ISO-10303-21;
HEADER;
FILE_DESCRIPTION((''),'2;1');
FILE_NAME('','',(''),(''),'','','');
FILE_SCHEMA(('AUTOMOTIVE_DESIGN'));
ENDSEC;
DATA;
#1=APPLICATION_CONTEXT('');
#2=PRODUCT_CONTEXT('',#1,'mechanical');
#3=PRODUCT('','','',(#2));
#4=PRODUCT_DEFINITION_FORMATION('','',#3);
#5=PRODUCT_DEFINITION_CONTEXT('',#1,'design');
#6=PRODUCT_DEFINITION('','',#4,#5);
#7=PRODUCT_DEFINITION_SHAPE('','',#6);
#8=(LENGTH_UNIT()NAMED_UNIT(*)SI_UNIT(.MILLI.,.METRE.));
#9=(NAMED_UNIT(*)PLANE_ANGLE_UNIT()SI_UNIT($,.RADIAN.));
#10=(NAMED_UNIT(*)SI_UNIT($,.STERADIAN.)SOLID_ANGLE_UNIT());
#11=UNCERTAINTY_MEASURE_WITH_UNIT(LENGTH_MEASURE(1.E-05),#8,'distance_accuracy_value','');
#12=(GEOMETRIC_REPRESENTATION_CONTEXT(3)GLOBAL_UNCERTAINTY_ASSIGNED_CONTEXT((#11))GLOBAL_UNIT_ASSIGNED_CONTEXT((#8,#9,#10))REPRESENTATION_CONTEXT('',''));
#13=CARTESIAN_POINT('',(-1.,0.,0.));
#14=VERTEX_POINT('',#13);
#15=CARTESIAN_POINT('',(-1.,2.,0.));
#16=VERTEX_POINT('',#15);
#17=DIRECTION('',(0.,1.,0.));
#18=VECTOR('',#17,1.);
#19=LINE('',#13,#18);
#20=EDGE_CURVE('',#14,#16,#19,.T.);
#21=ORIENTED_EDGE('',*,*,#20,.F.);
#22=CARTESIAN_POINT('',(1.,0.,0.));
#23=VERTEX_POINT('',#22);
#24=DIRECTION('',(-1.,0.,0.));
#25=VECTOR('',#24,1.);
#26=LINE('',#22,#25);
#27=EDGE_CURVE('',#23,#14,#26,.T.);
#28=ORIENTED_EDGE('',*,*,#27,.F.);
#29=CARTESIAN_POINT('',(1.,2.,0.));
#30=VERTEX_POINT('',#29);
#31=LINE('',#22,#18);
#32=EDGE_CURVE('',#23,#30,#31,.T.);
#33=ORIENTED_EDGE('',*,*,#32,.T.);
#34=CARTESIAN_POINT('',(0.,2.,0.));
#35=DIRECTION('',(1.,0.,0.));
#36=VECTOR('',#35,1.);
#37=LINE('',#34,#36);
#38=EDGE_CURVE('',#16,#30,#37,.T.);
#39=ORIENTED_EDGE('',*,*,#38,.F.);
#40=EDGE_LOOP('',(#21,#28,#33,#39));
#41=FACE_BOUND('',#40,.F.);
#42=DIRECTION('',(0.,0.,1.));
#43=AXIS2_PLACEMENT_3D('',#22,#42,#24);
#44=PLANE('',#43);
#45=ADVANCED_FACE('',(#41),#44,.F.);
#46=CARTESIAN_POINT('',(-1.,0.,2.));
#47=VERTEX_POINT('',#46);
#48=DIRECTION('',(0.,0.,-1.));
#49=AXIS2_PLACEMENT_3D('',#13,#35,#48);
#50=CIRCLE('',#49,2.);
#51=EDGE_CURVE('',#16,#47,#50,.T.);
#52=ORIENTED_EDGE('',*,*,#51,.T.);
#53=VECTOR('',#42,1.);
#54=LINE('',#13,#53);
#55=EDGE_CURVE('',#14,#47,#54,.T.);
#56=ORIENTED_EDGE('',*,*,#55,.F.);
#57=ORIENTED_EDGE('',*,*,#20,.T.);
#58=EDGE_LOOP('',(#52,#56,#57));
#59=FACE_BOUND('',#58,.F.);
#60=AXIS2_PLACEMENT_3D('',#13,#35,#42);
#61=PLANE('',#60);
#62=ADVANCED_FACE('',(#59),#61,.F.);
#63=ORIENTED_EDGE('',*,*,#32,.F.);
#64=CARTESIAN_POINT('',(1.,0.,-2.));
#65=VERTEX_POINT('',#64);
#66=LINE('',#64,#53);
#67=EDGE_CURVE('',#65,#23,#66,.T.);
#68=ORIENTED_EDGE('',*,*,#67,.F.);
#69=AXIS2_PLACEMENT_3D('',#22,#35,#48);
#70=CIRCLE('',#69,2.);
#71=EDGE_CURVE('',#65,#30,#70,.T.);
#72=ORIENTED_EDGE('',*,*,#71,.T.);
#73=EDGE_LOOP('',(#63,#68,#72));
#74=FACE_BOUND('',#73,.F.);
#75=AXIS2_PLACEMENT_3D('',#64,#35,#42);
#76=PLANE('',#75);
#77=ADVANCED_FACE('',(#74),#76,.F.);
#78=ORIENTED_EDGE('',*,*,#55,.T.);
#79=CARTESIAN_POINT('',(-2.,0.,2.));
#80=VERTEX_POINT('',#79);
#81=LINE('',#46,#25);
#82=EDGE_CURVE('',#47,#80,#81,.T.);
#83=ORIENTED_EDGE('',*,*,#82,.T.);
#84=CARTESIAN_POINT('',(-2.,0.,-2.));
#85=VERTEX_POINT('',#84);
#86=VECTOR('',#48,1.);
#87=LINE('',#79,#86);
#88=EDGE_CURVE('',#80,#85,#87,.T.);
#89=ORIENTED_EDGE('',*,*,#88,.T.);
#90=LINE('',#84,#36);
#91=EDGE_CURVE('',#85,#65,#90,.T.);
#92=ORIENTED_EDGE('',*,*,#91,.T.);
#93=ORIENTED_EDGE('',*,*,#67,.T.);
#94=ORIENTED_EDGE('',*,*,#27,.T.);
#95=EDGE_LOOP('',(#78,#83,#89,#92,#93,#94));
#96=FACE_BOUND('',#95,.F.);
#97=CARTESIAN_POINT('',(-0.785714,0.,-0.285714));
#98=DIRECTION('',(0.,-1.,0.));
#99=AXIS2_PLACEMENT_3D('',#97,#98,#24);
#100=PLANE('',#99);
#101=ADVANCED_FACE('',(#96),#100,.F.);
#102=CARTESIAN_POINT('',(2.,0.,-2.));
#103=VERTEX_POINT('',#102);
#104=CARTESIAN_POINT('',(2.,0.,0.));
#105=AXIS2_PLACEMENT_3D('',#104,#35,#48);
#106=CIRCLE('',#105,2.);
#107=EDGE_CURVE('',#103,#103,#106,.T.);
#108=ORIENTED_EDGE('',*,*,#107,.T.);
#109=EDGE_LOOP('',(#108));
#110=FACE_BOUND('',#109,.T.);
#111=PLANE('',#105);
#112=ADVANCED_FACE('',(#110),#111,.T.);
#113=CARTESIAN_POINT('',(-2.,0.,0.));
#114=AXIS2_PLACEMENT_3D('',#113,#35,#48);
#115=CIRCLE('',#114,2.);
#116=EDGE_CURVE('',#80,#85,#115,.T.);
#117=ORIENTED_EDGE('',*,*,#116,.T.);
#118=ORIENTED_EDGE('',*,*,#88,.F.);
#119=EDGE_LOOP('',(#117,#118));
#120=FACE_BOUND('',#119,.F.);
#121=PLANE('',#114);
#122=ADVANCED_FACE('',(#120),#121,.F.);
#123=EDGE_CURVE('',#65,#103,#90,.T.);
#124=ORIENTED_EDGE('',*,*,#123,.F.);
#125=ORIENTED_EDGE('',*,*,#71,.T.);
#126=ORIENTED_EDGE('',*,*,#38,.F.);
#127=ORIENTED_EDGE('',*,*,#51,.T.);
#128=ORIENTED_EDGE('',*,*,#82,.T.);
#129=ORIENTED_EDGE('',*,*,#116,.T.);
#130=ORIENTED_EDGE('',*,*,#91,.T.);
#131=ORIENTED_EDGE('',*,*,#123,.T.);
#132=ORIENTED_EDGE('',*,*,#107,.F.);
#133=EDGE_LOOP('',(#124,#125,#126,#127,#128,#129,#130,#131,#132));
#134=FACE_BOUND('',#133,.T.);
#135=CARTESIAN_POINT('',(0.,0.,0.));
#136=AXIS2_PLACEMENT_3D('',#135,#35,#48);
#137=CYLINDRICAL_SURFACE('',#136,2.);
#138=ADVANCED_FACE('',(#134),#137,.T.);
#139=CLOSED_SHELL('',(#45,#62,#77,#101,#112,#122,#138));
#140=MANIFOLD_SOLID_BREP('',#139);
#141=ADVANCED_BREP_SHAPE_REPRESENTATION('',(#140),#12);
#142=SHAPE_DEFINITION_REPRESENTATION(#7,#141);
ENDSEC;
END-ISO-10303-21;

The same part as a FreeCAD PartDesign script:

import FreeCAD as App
import Part
import Sketcher

V = App.Vector

doc = App.newDocument("Part")
body = doc.addObject("PartDesign::Body", "Body")

# Sketch on YZ plane
sketch1 = body.newObject("Sketcher::SketchObject", "Sketch")
sketch1.AttachmentSupport = (doc.getObject("YZ_Plane"), [""])
sketch1.MapMode = "FlatFace"
sketch1.addGeometry(Part.Circle(V(0, 0, 0), V(0, 0, 1), 2), False)
sketch1.addConstraint(Sketcher.Constraint("Coincident", 0, 3, -1, 1))
sketch1.addConstraint(Sketcher.Constraint("Diameter", 0, 4.0))
pad1 = body.newObject("PartDesign::Pad", "Pad")
pad1.Profile = sketch1
pad1.Length = 4
pad1.Midplane = True

# Sketch on XZ plane
sketch2 = body.newObject("Sketcher::SketchObject", "Sketch001")
sketch2.AttachmentSupport = (doc.getObject("XZ_Plane"), [""])
sketch2.MapMode = "FlatFace"
sketch2.addGeometry(Part.LineSegment(V(1, -2, 0), V(-2, -2, 0)), False)
sketch2.addGeometry(Part.LineSegment(V(-2, -2, 0), V(-2, 2, 0)), False)
sketch2.addGeometry(Part.LineSegment(V(-2, 2, 0), V(-1, 2, 0)), False)
sketch2.addGeometry(Part.LineSegment(V(-1, 2, 0), V(-1, 0, 0)), False)
sketch2.addGeometry(Part.LineSegment(V(-1, 0, 0), V(1, 0, 0)), False)
sketch2.addGeometry(Part.LineSegment(V(1, 0, 0), V(1, -2, 0)), False)
sketch2.addConstraint(Sketcher.Constraint("Coincident", 0, 2, 1, 1))
sketch2.addConstraint(Sketcher.Constraint("Coincident", 1, 2, 2, 1))
sketch2.addConstraint(Sketcher.Constraint("Coincident", 2, 2, 3, 1))
sketch2.addConstraint(Sketcher.Constraint("Coincident", 3, 2, 4, 1))
sketch2.addConstraint(Sketcher.Constraint("Coincident", 4, 2, 5, 1))
sketch2.addConstraint(Sketcher.Constraint("Coincident", 5, 2, 0, 1))
sketch2.addConstraint(Sketcher.Constraint("Horizontal", 0))
sketch2.addConstraint(Sketcher.Constraint("Vertical", 1))
sketch2.addConstraint(Sketcher.Constraint("Horizontal", 2))
sketch2.addConstraint(Sketcher.Constraint("Vertical", 3))
sketch2.addConstraint(Sketcher.Constraint("Horizontal", 4))
sketch2.addConstraint(Sketcher.Constraint("Vertical", 5))
sketch2.addConstraint(Sketcher.Constraint("Symmetric", 3, 2, 4, 2, -1, 1))
sketch2.addConstraint(Sketcher.Constraint("Equal", 4, 3))
sketch2.addConstraint(Sketcher.Constraint("Equal", 3, 5))
sketch2.addConstraint(Sketcher.Constraint("DistanceX", 0, 2, 0, 1, 3.0))
sketch2.addConstraint(Sketcher.Constraint("DistanceX", 2, 1, 2, 2, 1.0))
pocket1 = body.newObject("PartDesign::Pocket", "Pocket")
pocket1.Profile = sketch2
pocket1.Length = 4

doc.recompute()
